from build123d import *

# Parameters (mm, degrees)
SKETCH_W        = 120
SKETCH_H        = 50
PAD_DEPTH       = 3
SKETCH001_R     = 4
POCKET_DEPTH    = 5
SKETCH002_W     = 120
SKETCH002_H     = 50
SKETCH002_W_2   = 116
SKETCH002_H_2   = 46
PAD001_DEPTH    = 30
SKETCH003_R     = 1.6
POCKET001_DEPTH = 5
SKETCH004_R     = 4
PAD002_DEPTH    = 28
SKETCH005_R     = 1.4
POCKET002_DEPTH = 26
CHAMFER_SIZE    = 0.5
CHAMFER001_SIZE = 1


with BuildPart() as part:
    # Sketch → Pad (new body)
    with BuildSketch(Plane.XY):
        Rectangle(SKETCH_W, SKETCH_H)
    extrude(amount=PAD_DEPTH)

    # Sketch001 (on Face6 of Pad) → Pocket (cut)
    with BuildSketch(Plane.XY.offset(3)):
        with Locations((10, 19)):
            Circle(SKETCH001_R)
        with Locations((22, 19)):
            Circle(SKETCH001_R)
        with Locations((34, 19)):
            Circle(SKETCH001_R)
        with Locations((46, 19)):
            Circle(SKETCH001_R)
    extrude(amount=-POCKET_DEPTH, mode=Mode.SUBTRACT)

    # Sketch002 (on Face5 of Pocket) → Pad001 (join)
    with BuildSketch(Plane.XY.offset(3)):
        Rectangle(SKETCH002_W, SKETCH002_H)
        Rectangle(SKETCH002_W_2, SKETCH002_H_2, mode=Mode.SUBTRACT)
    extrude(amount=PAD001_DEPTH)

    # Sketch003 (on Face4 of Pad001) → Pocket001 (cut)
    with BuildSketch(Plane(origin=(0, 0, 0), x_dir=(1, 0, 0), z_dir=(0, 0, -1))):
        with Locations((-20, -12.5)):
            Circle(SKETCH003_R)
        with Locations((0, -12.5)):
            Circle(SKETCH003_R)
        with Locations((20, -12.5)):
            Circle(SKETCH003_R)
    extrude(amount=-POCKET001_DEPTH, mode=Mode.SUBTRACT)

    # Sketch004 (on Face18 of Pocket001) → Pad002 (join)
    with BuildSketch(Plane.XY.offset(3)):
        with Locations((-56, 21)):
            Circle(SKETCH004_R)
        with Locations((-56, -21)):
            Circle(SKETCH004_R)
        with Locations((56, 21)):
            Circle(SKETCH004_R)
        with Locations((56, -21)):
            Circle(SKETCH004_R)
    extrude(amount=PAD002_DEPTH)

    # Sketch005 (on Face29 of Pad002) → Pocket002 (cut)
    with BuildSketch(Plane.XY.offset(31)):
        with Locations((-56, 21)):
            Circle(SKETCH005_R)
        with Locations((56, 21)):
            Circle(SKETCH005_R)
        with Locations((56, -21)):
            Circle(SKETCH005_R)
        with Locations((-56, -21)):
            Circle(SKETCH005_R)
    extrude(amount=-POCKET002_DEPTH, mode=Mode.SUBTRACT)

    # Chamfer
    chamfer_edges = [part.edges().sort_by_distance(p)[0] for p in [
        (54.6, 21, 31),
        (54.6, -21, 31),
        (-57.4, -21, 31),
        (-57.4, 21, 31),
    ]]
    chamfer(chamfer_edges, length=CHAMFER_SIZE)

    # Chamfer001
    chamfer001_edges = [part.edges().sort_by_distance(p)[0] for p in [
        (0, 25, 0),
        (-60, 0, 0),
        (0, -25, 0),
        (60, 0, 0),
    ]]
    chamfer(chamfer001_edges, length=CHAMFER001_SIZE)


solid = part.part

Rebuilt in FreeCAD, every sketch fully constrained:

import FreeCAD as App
import Part
import Sketcher

V = App.Vector
Q = App.Units.Quantity


def edges_at(feature, points):
    """Names of the edges that pass closest to the given points."""
    edges = feature.Shape.Edges
    near = lambda p: min(range(len(edges)), key=lambda i: edges[i].distToShape(Part.Vertex(*p))[0])
    return sorted({f"Edge{near(p) + 1}" for p in points})

doc = App.newDocument("Part")
body = doc.addObject("PartDesign::Body", "Body")

sketch1 = body.newObject("Sketcher::SketchObject", "Sketch")
sketch1.AttachmentSupport = (doc.getObject("XY_Plane"), [""])
sketch1.MapMode = "FlatFace"
sketch1.addGeometry([
    Part.LineSegment(V(-60, 25, 0), V(-60, -25, 0)),
    Part.LineSegment(V(-60, -25, 0), V(60, -25, 0)),
    Part.LineSegment(V(60, -25, 0), V(60, 25, 0)),
    Part.LineSegment(V(60, 25, 0), V(-60, 25, 0)),
], False)
sketch1.addConstraint([
    Sketcher.Constraint("Coincident", 0, 2, 1, 1),
    Sketcher.Constraint("Coincident", 1, 2, 2, 1),
    Sketcher.Constraint("Coincident", 2, 2, 3, 1),
    Sketcher.Constraint("Coincident", 3, 2, 0, 1),
    Sketcher.Constraint("Vertical", 0),
    Sketcher.Constraint("Horizontal", 1),
    Sketcher.Constraint("Vertical", 2),
    Sketcher.Constraint("Horizontal", 3),
    Sketcher.Constraint("Symmetric", 0, 2, 2, 2, -1, 1),
    Sketcher.Constraint("DistanceX", 1, 1, 1, 2, Q("120 mm")),
    Sketcher.Constraint("DistanceY", 0, 2, 0, 1, Q("50 mm")),
])
pad1 = body.newObject("PartDesign::Pad", "Pad")
pad1.Profile = sketch1
pad1.Length = 3

sketch2 = body.newObject("Sketcher::SketchObject", "Sketch001")
sketch2.AttachmentSupport = (doc.getObject("XY_Plane"), [""])
sketch2.MapMode = "FlatFace"
sketch2.AttachmentOffset = App.Placement(V(0, 0, 3), App.Rotation())
sketch2.addGeometry([
    Part.Circle(V(10, 19, 0), V(0, 0, 1), 4),
    Part.Circle(V(22, 19, 0), V(0, 0, 1), 4),
    Part.Circle(V(34, 19, 0), V(0, 0, 1), 4),
    Part.Circle(V(46, 19, 0), V(0, 0, 1), 4),
], False)
sketch2.addConstraint([
    Sketcher.Constraint("Equal", 0, 1),
    Sketcher.Constraint("Equal", 1, 2),
    Sketcher.Constraint("Equal", 2, 3),
    Sketcher.Constraint("Horizontal", 0, 3, 1, 3),
    Sketcher.Constraint("Horizontal", 1, 3, 2, 3),
    Sketcher.Constraint("Horizontal", 2, 3, 3, 3),
    Sketcher.Constraint("Diameter", 0, Q("8 mm")),
    Sketcher.Constraint("DistanceX", -1, 1, 0, 3, Q("10 mm")),
    Sketcher.Constraint("DistanceY", -1, 1, 0, 3, Q("19 mm")),
    Sketcher.Constraint("DistanceX", -1, 1, 1, 3, Q("22 mm")),
    Sketcher.Constraint("DistanceX", -1, 1, 2, 3, Q("34 mm")),
    Sketcher.Constraint("DistanceX", -1, 1, 3, 3, Q("46 mm")),
])
pocket1 = body.newObject("PartDesign::Pocket", "Pocket")
pocket1.Profile = sketch2
pocket1.Length = 5

sketch3 = body.newObject("Sketcher::SketchObject", "Sketch002")
sketch3.AttachmentSupport = (doc.getObject("XY_Plane"), [""])
sketch3.MapMode = "FlatFace"
sketch3.AttachmentOffset = App.Placement(V(0, 0, 3), App.Rotation())
sketch3.addGeometry([
    Part.LineSegment(V(-60, 25, 0), V(-60, -25, 0)),
    Part.LineSegment(V(-60, -25, 0), V(60, -25, 0)),
    Part.LineSegment(V(60, -25, 0), V(60, 25, 0)),
    Part.LineSegment(V(60, 25, 0), V(-60, 25, 0)),
    Part.LineSegment(V(58, -23, 0), V(-58, -23, 0)),
    Part.LineSegment(V(-58, -23, 0), V(-58, 23, 0)),
    Part.LineSegment(V(-58, 23, 0), V(58, 23, 0)),
    Part.LineSegment(V(58, 23, 0), V(58, -23, 0)),
], False)
sketch3.addConstraint([
    Sketcher.Constraint("Coincident", 0, 2, 1, 1),
    Sketcher.Constraint("Coincident", 1, 2, 2, 1),
    Sketcher.Constraint("Coincident", 2, 2, 3, 1),
    Sketcher.Constraint("Coincident", 3, 2, 0, 1),
    Sketcher.Constraint("Coincident", 4, 2, 5, 1),
    Sketcher.Constraint("Coincident", 5, 2, 6, 1),
    Sketcher.Constraint("Coincident", 6, 2, 7, 1),
    Sketcher.Constraint("Coincident", 7, 2, 4, 1),
    Sketcher.Constraint("Vertical", 0),
    Sketcher.Constraint("Horizontal", 1),
    Sketcher.Constraint("Vertical", 2),
    Sketcher.Constraint("Horizontal", 3),
    Sketcher.Constraint("Horizontal", 4),
    Sketcher.Constraint("Vertical", 5),
    Sketcher.Constraint("Horizontal", 6),
    Sketcher.Constraint("Vertical", 7),
    Sketcher.Constraint("Symmetric", 0, 2, 2, 2, -1, 1),
    Sketcher.Constraint("Symmetric", 4, 2, 6, 2, -1, 1),
    Sketcher.Constraint("DistanceX", 1, 1, 1, 2, Q("120 mm")),
    Sketcher.Constraint("DistanceX", 4, 2, 4, 1, Q("116 mm")),
    Sketcher.Constraint("DistanceY", 0, 2, 0, 1, Q("50 mm")),
    Sketcher.Constraint("DistanceY", 5, 1, 5, 2, Q("46 mm")),
])
pad2 = body.newObject("PartDesign::Pad", "Pad001")
pad2.Profile = sketch3
pad2.Length = 30

sketch4 = body.newObject("Sketcher::SketchObject", "Sketch003")
sketch4.AttachmentSupport = (doc.getObject("XY_Plane"), [""])
sketch4.MapMode = "FlatFace"
sketch4.addGeometry([
    Part.Circle(V(-20, 12.5, 0), V(0, 0, 1), 1.6),
    Part.Circle(V(0, 12.5, 0), V(0, 0, 1), 1.6),
    Part.Circle(V(20, 12.5, 0), V(0, 0, 1), 1.6),
], False)
sketch4.addConstraint([
    Sketcher.Constraint("Equal", 0, 1),
    Sketcher.Constraint("Equal", 1, 2),
    Sketcher.Constraint("Symmetric", 0, 3, 2, 3, -2),
    Sketcher.Constraint("PointOnObject", 1, 3, -2),
    Sketcher.Constraint("Horizontal", 0, 3, 1, 3),
    Sketcher.Constraint("Diameter", 0, Q("3.2 mm")),
    Sketcher.Constraint("DistanceX", 0, 3, -1, 1, Q("20 mm")),
    Sketcher.Constraint("DistanceY", -1, 1, 0, 3, Q("12.5 mm")),
])
pocket2 = body.newObject("PartDesign::Pocket", "Pocket001")
pocket2.Profile = sketch4
pocket2.Length = 5
pocket2.Reversed = True

sketch5 = body.newObject("Sketcher::SketchObject", "Sketch004")
sketch5.AttachmentSupport = (doc.getObject("XY_Plane"), [""])
sketch5.MapMode = "FlatFace"
sketch5.AttachmentOffset = App.Placement(V(0, 0, 3), App.Rotation())
sketch5.addGeometry([
    Part.Circle(V(-56, 21, 0), V(0, 0, 1), 4),
    Part.Circle(V(-56, -21, 0), V(0, 0, 1), 4),
    Part.Circle(V(56, 21, 0), V(0, 0, 1), 4),
    Part.Circle(V(56, -21, 0), V(0, 0, 1), 4),
], False)
sketch5.addConstraint([
    Sketcher.Constraint("Equal", 0, 1),
    Sketcher.Constraint("Equal", 1, 2),
    Sketcher.Constraint("Equal", 2, 3),
    Sketcher.Constraint("Symmetric", 1, 3, 2, 3, -1, 1),
    Sketcher.Constraint("Symmetric", 0, 3, 3, 3, -1, 1),
    Sketcher.Constraint("Symmetric", 0, 3, 2, 3, -2),
    Sketcher.Constraint("Diameter", 0, Q("8 mm")),
    Sketcher.Constraint("DistanceX", 0, 3, -1, 1, Q("56 mm")),
    Sketcher.Constraint("DistanceY", -1, 1, 0, 3, Q("21 mm")),
])
pad3 = body.newObject("PartDesign::Pad", "Pad002")
pad3.Profile = sketch5
pad3.Length = 28

sketch6 = body.newObject("Sketcher::SketchObject", "Sketch005")
sketch6.AttachmentSupport = (doc.getObject("XY_Plane"), [""])
sketch6.MapMode = "FlatFace"
sketch6.AttachmentOffset = App.Placement(V(0, 0, 31), App.Rotation())
sketch6.addGeometry([
    Part.Circle(V(-56, 21, 0), V(0, 0, 1), 1.4),
    Part.Circle(V(56, 21, 0), V(0, 0, 1), 1.4),
    Part.Circle(V(56, -21, 0), V(0, 0, 1), 1.4),
    Part.Circle(V(-56, -21, 0), V(0, 0, 1), 1.4),
], False)
sketch6.addConstraint([
    Sketcher.Constraint("Equal", 0, 1),
    Sketcher.Constraint("Equal", 1, 2),
    Sketcher.Constraint("Equal", 2, 3),
    Sketcher.Constraint("Symmetric", 0, 3, 2, 3, -1, 1),
    Sketcher.Constraint("Symmetric", 1, 3, 3, 3, -1, 1),
    Sketcher.Constraint("Symmetric", 0, 3, 1, 3, -2),
    Sketcher.Constraint("Diameter", 0, Q("2.8 mm")),
    Sketcher.Constraint("DistanceX", 0, 3, -1, 1, Q("56 mm")),
    Sketcher.Constraint("DistanceY", -1, 1, 0, 3, Q("21 mm")),
])
pocket3 = body.newObject("PartDesign::Pocket", "Pocket002")
pocket3.Profile = sketch6
pocket3.Length = 26
doc.recompute()

chamfer = body.newObject("PartDesign::Chamfer", "Chamfer")
chamfer.Base = (pocket3, edges_at(pocket3, [
    (54.6, 21, 31),
    (54.6, -21, 31),
    (-57.4, -21, 31),
    (-57.4, 21, 31),
]))
chamfer.Size = 0.5
doc.recompute()

chamfer2 = body.newObject("PartDesign::Chamfer", "Chamfer001")
chamfer2.Base = (chamfer, edges_at(chamfer, [
    (0, 25, 0),
    (-60, 0, 0),
    (0, -25, 0),
    (60, 0, 0),
]))
chamfer2.Size = 1

doc.recompute()
